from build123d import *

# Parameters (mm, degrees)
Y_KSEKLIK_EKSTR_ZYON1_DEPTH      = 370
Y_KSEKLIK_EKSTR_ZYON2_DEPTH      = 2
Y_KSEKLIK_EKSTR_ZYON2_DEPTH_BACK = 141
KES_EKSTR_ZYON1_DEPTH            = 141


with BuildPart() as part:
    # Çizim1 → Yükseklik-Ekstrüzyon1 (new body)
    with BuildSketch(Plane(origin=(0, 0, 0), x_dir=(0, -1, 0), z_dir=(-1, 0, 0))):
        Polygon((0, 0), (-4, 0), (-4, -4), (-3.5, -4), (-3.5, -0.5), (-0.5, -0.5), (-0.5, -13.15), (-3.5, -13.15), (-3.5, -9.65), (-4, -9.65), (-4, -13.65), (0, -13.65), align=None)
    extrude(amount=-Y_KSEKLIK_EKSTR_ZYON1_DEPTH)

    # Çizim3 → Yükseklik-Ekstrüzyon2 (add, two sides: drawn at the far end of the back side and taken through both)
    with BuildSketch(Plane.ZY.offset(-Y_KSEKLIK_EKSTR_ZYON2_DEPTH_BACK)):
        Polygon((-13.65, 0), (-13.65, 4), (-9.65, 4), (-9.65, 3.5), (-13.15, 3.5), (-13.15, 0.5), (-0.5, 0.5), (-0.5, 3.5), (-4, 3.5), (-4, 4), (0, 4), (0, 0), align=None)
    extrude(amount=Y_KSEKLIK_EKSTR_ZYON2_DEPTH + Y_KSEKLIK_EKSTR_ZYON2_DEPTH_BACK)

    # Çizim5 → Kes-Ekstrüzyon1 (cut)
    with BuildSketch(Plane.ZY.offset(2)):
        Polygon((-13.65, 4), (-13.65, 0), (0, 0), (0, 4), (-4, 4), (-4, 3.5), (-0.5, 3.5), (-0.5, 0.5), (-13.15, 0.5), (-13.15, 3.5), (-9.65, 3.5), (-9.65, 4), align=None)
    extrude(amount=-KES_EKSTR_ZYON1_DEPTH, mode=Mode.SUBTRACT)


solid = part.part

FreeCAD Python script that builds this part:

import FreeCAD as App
import Part
import Sketcher
from FreeCAD import Vector
Q = App.Units.Quantity


def add_polygon(sketch, points):
    """Adds a closed chain of lines whose ends are joined by coincident constraints."""
    first, n = sketch.GeometryCount, len(points)
    for a, b in zip(points, points[1:] + points[:1]):
        sketch.addGeometry(Part.LineSegment(App.Vector(*a, 0), App.Vector(*b, 0)), False)
    for i in range(n):
        sketch.addConstraint(Sketcher.Constraint("Coincident", first + i, 2, first + (i + 1) % n, 1))

doc = App.newDocument("Part")
body = doc.addObject("PartDesign::Body", "Body")

sketch1 = body.newObject("Sketcher::SketchObject", "Sketch")
sketch1.AttachmentSupport = (doc.getObject("YZ_Plane"), [""])
sketch1.MapMode = "FlatFace"
add_polygon(sketch1, [(0, 0), (4, 0), (4, -4), (3.5, -4), (3.5, -0.5), (0.5, -0.5), (0.5, -13.2), (3.5, -13.2), (3.5, -9.7), (4, -9.7), (4, -13.7), (0, -13.7)])
sketch1.addConstraint([
    Sketcher.Constraint("Horizontal", 0),
    Sketcher.Constraint("Vertical", 1),
    Sketcher.Constraint("Horizontal", 2),
    Sketcher.Constraint("Vertical", 3),
    Sketcher.Constraint("Horizontal", 4),
    Sketcher.Constraint("Vertical", 5),
    Sketcher.Constraint("Horizontal", 6),
    Sketcher.Constraint("Vertical", 7),
    Sketcher.Constraint("Horizontal", 8),
    Sketcher.Constraint("Vertical", 9),
    Sketcher.Constraint("Horizontal", 10),
    Sketcher.Constraint("Vertical", 11),
    Sketcher.Constraint("Coincident", 11, 2, -1, 1),
    Sketcher.Constraint("Vertical", 3, 2, 6, 2),
    Sketcher.Constraint("Vertical", 1, 2, 8, 2),
    Sketcher.Constraint("Equal", 10, 1),
    Sketcher.Constraint("Equal", 3, 7),
    Sketcher.Constraint("Equal", 1, 9),
    Sketcher.Constraint("DistanceX", 0, 1, 0, 2, Q("4 mm")),
    Sketcher.Constraint("DistanceX", 4, 2, 4, 1, Q("3 mm")),
    Sketcher.Constraint("DistanceX", 2, 2, 2, 1, Q("0.5 mm")),
    Sketcher.Constraint("DistanceY", 3, 1, 3, 2, Q("3.5 mm")),
    Sketcher.Constraint("DistanceY", 5, 2, 5, 1, Q("12.65 mm")),
])
pad1 = body.newObject("PartDesign::Pad", "Pad")
pad1.Profile = sketch1
pad1.Length = 370

sketch2 = body.newObject("Sketcher::SketchObject", "Sketch001")
sketch2.AttachmentSupport = (doc.getObject("YZ_Plane"), [""])
sketch2.MapMode = "FlatFace"
add_polygon(sketch2, [(4, -13.7), (0, -13.7), (0, 0), (4, 0), (4, -4), (3.5, -4), (3.5, -0.5), (0.5, -0.5), (0.5, -13.2), (3.5, -13.2), (3.5, -9.7), (4, -9.7)])
sketch2.addConstraint([
    Sketcher.Constraint("Horizontal", 0),
    Sketcher.Constraint("Vertical", 1),
    Sketcher.Constraint("Horizontal", 2),
    Sketcher.Constraint("Vertical", 3),
    Sketcher.Constraint("Horizontal", 4),
    Sketcher.Constraint("Vertical", 5),
    Sketcher.Constraint("Horizontal", 6),
    Sketcher.Constraint("Vertical", 7),
    Sketcher.Constraint("Horizontal", 8),
    Sketcher.Constraint("Vertical", 9),
    Sketcher.Constraint("Horizontal", 10),
    Sketcher.Constraint("Vertical", 11),
    Sketcher.Constraint("Coincident", 1, 2, -1, 1),
    Sketcher.Constraint("Vertical", 5, 2, 8, 2),
    Sketcher.Constraint("Vertical", 3, 2, 10, 2),
    Sketcher.Constraint("Equal", 2, 3),
    Sketcher.Constraint("Equal", 5, 9),
    Sketcher.Constraint("Equal", 3, 11),
    Sketcher.Constraint("DistanceX", 0, 2, 0, 1, Q("4 mm")),
    Sketcher.Constraint("DistanceX", 6, 2, 6, 1, Q("3 mm")),
    Sketcher.Constraint("DistanceX", 4, 2, 4, 1, Q("0.5 mm")),
    Sketcher.Constraint("DistanceY", 5, 1, 5, 2, Q("3.5 mm")),
    Sketcher.Constraint("DistanceY", 1, 1, 1, 2, Q("13.65 mm")),
])
pad2 = body.newObject("PartDesign::Pad", "Pad001")
pad2.Profile = sketch2
pad2.Type = "TwoLengths"
pad2.Length = 2
pad2.Length2 = 141
pad2.Reversed = True

sketch3 = body.newObject("Sketcher::SketchObject", "Sketch002")
sketch3.AttachmentSupport = (doc.getObject("YZ_Plane"), [""])
sketch3.MapMode = "FlatFace"
sketch3.AttachmentOffset = App.Placement(Vector(0, 0, -2), App.Rotation())
add_polygon(sketch3, [(4, -13.7), (0, -13.7), (0, 0), (4, 0), (4, -4), (3.5, -4), (3.5, -0.5), (0.5, -0.5), (0.5, -13.2), (3.5, -13.2), (3.5, -9.7), (4, -9.7)])
sketch3.addConstraint([
    Sketcher.Constraint("Horizontal", 0),
    Sketcher.Constraint("Vertical", 1),
    Sketcher.Constraint("Horizontal", 2),
    Sketcher.Constraint("Vertical", 3),
    Sketcher.Constraint("Horizontal", 4),
    Sketcher.Constraint("Vertical", 5),
    Sketcher.Constraint("Horizontal", 6),
    Sketcher.Constraint("Vertical", 7),
    Sketcher.Constraint("Horizontal", 8),
    Sketcher.Constraint("Vertical", 9),
    Sketcher.Constraint("Horizontal", 10),
    Sketcher.Constraint("Vertical", 11),
    Sketcher.Constraint("Coincident", 1, 2, -1, 1),
    Sketcher.Constraint("Vertical", 5, 2, 8, 2),
    Sketcher.Constraint("Vertical", 3, 2, 10, 2),
    Sketcher.Constraint("Equal", 2, 3),
    Sketcher.Constraint("Equal", 5, 9),
    Sketcher.Constraint("Equal", 3, 11),
    Sketcher.Constraint("DistanceX", 0, 2, 0, 1, Q("4 mm")),
    Sketcher.Constraint("DistanceX", 6, 2, 6, 1, Q("3 mm")),
    Sketcher.Constraint("DistanceX", 4, 2, 4, 1, Q("0.5 mm")),
    Sketcher.Constraint("DistanceY", 5, 1, 5, 2, Q("3.5 mm")),
    Sketcher.Constraint("DistanceY", 1, 1, 1, 2, Q("13.65 mm")),
])
pocket1 = body.newObject("PartDesign::Pocket", "Pocket")
pocket1.Profile = sketch3
pocket1.Length = 141
pocket1.Reversed = True

doc.recompute()
